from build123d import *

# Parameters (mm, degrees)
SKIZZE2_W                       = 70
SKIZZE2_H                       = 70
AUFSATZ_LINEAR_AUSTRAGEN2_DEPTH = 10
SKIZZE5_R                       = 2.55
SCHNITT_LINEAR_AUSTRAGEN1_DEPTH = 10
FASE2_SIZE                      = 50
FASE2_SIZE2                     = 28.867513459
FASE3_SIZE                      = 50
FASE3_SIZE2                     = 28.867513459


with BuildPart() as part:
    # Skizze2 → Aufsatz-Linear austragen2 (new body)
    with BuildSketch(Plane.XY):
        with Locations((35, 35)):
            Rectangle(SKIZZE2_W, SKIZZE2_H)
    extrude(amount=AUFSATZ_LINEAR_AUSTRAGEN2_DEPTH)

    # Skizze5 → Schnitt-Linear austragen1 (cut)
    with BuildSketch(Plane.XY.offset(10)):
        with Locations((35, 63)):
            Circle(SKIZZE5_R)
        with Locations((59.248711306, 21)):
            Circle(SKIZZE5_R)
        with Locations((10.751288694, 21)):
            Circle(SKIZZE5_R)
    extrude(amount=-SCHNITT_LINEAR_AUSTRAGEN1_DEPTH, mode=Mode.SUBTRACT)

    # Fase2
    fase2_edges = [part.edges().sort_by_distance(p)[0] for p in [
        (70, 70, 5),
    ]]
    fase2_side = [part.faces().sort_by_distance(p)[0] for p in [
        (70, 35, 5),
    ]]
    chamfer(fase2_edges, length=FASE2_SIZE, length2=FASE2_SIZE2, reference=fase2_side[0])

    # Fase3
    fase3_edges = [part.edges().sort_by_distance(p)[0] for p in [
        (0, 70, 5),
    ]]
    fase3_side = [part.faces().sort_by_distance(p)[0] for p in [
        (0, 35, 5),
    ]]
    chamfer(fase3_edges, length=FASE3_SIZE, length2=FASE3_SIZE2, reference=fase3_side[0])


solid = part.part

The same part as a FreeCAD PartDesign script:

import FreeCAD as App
import Part
import Sketcher
from FreeCAD import Vector
Q = App.Units.Quantity


def edges_at(feature, points):
    """Names of the edges that pass closest to the given points."""
    edges = feature.Shape.Edges
    near = lambda p: min(range(len(edges)), key=lambda i: edges[i].distToShape(Part.Vertex(*p))[0])
    return sorted({f"Edge{near(p) + 1}" for p in points})

doc = App.newDocument("Part")
body = doc.addObject("PartDesign::Body", "Body")

sketch1 = body.newObject("Sketcher::SketchObject", "Sketch")
sketch1.AttachmentSupport = (doc.getObject("XY_Plane"), [""])
sketch1.MapMode = "FlatFace"
sketch1.addGeometry([
    Part.LineSegment(Vector(0, 70, 0), Vector(0, 0, 0)),
    Part.LineSegment(Vector(0, 0, 0), Vector(70, 0, 0)),
    Part.LineSegment(Vector(70, 0, 0), Vector(70, 70, 0)),
    Part.LineSegment(Vector(70, 70, 0), Vector(0, 70, 0)),
], False)
sketch1.addConstraint([
    Sketcher.Constraint("Coincident", 0, 2, 1, 1),
    Sketcher.Constraint("Coincident", 1, 2, 2, 1),
    Sketcher.Constraint("Coincident", 2, 2, 3, 1),
    Sketcher.Constraint("Coincident", 3, 2, 0, 1),
    Sketcher.Constraint("Vertical", 0),
    Sketcher.Constraint("Horizontal", 1),
    Sketcher.Constraint("Vertical", 2),
    Sketcher.Constraint("Horizontal", 3),
    Sketcher.Constraint("Coincident", 0, 2, -1, 1),
    Sketcher.Constraint("Equal", 3, 0),
    Sketcher.Constraint("DistanceX", 1, 1, 1, 2, Q("70 mm")),
])
pad1 = body.newObject("PartDesign::Pad", "Pad")
pad1.Profile = sketch1
pad1.Length = 10

sketch2 = body.newObject("Sketcher::SketchObject", "Sketch001")
sketch2.AttachmentSupport = (doc.getObject("XY_Plane"), [""])
sketch2.MapMode = "FlatFace"
sketch2.AttachmentOffset = App.Placement(Vector(0, 0, 10), App.Rotation())
sketch2.addGeometry([
    Part.Circle(Vector(35, 63, 0), Vector(0, 0, 1), 2.5),
    Part.Circle(Vector(59.2, 21, 0), Vector(0, 0, 1), 2.5),
    Part.Circle(Vector(10.8, 21, 0), Vector(0, 0, 1), 2.5),
], False)
sketch2.addConstraint([
    Sketcher.Constraint("Equal", 0, 1),
    Sketcher.Constraint("Equal", 1, 2),
    Sketcher.Constraint("Horizontal", 1, 3, 2, 3),
    Sketcher.Constraint("Diameter", 0, Q("5.1 mm")),
    Sketcher.Constraint("DistanceX", -1, 1, 0, 3, Q("35 mm")),
    Sketcher.Constraint("DistanceY", -1, 1, 0, 3, Q("63 mm")),
    Sketcher.Constraint("DistanceY", -1, 1, 1, 3, Q("21 mm")),
    Sketcher.Constraint("DistanceX", -1, 1, 1, 3, Q("59.248711 mm")),
    Sketcher.Constraint("DistanceX", -1, 1, 2, 3, Q("10.751289 mm")),
])
pocket1 = body.newObject("PartDesign::Pocket", "Pocket")
pocket1.Profile = sketch2
pocket1.Length = 10
doc.recompute()

chamfer = body.newObject("PartDesign::Chamfer", "Chamfer")
chamfer.Base = (pocket1, edges_at(pocket1, [(70, 70, 5)]))
chamfer.ChamferType = "Two distances"
chamfer.Size = 50
chamfer.Size2 = 28.867513
chamfer.FlipDirection = True
doc.recompute()

chamfer2 = body.newObject("PartDesign::Chamfer", "Chamfer001")
chamfer2.Base = (chamfer, edges_at(chamfer, [(0, 70, 5)]))
chamfer2.ChamferType = "Two distances"
chamfer2.Size = 50
chamfer2.Size2 = 28.867513
chamfer2.FlipDirection = True

doc.recompute()
